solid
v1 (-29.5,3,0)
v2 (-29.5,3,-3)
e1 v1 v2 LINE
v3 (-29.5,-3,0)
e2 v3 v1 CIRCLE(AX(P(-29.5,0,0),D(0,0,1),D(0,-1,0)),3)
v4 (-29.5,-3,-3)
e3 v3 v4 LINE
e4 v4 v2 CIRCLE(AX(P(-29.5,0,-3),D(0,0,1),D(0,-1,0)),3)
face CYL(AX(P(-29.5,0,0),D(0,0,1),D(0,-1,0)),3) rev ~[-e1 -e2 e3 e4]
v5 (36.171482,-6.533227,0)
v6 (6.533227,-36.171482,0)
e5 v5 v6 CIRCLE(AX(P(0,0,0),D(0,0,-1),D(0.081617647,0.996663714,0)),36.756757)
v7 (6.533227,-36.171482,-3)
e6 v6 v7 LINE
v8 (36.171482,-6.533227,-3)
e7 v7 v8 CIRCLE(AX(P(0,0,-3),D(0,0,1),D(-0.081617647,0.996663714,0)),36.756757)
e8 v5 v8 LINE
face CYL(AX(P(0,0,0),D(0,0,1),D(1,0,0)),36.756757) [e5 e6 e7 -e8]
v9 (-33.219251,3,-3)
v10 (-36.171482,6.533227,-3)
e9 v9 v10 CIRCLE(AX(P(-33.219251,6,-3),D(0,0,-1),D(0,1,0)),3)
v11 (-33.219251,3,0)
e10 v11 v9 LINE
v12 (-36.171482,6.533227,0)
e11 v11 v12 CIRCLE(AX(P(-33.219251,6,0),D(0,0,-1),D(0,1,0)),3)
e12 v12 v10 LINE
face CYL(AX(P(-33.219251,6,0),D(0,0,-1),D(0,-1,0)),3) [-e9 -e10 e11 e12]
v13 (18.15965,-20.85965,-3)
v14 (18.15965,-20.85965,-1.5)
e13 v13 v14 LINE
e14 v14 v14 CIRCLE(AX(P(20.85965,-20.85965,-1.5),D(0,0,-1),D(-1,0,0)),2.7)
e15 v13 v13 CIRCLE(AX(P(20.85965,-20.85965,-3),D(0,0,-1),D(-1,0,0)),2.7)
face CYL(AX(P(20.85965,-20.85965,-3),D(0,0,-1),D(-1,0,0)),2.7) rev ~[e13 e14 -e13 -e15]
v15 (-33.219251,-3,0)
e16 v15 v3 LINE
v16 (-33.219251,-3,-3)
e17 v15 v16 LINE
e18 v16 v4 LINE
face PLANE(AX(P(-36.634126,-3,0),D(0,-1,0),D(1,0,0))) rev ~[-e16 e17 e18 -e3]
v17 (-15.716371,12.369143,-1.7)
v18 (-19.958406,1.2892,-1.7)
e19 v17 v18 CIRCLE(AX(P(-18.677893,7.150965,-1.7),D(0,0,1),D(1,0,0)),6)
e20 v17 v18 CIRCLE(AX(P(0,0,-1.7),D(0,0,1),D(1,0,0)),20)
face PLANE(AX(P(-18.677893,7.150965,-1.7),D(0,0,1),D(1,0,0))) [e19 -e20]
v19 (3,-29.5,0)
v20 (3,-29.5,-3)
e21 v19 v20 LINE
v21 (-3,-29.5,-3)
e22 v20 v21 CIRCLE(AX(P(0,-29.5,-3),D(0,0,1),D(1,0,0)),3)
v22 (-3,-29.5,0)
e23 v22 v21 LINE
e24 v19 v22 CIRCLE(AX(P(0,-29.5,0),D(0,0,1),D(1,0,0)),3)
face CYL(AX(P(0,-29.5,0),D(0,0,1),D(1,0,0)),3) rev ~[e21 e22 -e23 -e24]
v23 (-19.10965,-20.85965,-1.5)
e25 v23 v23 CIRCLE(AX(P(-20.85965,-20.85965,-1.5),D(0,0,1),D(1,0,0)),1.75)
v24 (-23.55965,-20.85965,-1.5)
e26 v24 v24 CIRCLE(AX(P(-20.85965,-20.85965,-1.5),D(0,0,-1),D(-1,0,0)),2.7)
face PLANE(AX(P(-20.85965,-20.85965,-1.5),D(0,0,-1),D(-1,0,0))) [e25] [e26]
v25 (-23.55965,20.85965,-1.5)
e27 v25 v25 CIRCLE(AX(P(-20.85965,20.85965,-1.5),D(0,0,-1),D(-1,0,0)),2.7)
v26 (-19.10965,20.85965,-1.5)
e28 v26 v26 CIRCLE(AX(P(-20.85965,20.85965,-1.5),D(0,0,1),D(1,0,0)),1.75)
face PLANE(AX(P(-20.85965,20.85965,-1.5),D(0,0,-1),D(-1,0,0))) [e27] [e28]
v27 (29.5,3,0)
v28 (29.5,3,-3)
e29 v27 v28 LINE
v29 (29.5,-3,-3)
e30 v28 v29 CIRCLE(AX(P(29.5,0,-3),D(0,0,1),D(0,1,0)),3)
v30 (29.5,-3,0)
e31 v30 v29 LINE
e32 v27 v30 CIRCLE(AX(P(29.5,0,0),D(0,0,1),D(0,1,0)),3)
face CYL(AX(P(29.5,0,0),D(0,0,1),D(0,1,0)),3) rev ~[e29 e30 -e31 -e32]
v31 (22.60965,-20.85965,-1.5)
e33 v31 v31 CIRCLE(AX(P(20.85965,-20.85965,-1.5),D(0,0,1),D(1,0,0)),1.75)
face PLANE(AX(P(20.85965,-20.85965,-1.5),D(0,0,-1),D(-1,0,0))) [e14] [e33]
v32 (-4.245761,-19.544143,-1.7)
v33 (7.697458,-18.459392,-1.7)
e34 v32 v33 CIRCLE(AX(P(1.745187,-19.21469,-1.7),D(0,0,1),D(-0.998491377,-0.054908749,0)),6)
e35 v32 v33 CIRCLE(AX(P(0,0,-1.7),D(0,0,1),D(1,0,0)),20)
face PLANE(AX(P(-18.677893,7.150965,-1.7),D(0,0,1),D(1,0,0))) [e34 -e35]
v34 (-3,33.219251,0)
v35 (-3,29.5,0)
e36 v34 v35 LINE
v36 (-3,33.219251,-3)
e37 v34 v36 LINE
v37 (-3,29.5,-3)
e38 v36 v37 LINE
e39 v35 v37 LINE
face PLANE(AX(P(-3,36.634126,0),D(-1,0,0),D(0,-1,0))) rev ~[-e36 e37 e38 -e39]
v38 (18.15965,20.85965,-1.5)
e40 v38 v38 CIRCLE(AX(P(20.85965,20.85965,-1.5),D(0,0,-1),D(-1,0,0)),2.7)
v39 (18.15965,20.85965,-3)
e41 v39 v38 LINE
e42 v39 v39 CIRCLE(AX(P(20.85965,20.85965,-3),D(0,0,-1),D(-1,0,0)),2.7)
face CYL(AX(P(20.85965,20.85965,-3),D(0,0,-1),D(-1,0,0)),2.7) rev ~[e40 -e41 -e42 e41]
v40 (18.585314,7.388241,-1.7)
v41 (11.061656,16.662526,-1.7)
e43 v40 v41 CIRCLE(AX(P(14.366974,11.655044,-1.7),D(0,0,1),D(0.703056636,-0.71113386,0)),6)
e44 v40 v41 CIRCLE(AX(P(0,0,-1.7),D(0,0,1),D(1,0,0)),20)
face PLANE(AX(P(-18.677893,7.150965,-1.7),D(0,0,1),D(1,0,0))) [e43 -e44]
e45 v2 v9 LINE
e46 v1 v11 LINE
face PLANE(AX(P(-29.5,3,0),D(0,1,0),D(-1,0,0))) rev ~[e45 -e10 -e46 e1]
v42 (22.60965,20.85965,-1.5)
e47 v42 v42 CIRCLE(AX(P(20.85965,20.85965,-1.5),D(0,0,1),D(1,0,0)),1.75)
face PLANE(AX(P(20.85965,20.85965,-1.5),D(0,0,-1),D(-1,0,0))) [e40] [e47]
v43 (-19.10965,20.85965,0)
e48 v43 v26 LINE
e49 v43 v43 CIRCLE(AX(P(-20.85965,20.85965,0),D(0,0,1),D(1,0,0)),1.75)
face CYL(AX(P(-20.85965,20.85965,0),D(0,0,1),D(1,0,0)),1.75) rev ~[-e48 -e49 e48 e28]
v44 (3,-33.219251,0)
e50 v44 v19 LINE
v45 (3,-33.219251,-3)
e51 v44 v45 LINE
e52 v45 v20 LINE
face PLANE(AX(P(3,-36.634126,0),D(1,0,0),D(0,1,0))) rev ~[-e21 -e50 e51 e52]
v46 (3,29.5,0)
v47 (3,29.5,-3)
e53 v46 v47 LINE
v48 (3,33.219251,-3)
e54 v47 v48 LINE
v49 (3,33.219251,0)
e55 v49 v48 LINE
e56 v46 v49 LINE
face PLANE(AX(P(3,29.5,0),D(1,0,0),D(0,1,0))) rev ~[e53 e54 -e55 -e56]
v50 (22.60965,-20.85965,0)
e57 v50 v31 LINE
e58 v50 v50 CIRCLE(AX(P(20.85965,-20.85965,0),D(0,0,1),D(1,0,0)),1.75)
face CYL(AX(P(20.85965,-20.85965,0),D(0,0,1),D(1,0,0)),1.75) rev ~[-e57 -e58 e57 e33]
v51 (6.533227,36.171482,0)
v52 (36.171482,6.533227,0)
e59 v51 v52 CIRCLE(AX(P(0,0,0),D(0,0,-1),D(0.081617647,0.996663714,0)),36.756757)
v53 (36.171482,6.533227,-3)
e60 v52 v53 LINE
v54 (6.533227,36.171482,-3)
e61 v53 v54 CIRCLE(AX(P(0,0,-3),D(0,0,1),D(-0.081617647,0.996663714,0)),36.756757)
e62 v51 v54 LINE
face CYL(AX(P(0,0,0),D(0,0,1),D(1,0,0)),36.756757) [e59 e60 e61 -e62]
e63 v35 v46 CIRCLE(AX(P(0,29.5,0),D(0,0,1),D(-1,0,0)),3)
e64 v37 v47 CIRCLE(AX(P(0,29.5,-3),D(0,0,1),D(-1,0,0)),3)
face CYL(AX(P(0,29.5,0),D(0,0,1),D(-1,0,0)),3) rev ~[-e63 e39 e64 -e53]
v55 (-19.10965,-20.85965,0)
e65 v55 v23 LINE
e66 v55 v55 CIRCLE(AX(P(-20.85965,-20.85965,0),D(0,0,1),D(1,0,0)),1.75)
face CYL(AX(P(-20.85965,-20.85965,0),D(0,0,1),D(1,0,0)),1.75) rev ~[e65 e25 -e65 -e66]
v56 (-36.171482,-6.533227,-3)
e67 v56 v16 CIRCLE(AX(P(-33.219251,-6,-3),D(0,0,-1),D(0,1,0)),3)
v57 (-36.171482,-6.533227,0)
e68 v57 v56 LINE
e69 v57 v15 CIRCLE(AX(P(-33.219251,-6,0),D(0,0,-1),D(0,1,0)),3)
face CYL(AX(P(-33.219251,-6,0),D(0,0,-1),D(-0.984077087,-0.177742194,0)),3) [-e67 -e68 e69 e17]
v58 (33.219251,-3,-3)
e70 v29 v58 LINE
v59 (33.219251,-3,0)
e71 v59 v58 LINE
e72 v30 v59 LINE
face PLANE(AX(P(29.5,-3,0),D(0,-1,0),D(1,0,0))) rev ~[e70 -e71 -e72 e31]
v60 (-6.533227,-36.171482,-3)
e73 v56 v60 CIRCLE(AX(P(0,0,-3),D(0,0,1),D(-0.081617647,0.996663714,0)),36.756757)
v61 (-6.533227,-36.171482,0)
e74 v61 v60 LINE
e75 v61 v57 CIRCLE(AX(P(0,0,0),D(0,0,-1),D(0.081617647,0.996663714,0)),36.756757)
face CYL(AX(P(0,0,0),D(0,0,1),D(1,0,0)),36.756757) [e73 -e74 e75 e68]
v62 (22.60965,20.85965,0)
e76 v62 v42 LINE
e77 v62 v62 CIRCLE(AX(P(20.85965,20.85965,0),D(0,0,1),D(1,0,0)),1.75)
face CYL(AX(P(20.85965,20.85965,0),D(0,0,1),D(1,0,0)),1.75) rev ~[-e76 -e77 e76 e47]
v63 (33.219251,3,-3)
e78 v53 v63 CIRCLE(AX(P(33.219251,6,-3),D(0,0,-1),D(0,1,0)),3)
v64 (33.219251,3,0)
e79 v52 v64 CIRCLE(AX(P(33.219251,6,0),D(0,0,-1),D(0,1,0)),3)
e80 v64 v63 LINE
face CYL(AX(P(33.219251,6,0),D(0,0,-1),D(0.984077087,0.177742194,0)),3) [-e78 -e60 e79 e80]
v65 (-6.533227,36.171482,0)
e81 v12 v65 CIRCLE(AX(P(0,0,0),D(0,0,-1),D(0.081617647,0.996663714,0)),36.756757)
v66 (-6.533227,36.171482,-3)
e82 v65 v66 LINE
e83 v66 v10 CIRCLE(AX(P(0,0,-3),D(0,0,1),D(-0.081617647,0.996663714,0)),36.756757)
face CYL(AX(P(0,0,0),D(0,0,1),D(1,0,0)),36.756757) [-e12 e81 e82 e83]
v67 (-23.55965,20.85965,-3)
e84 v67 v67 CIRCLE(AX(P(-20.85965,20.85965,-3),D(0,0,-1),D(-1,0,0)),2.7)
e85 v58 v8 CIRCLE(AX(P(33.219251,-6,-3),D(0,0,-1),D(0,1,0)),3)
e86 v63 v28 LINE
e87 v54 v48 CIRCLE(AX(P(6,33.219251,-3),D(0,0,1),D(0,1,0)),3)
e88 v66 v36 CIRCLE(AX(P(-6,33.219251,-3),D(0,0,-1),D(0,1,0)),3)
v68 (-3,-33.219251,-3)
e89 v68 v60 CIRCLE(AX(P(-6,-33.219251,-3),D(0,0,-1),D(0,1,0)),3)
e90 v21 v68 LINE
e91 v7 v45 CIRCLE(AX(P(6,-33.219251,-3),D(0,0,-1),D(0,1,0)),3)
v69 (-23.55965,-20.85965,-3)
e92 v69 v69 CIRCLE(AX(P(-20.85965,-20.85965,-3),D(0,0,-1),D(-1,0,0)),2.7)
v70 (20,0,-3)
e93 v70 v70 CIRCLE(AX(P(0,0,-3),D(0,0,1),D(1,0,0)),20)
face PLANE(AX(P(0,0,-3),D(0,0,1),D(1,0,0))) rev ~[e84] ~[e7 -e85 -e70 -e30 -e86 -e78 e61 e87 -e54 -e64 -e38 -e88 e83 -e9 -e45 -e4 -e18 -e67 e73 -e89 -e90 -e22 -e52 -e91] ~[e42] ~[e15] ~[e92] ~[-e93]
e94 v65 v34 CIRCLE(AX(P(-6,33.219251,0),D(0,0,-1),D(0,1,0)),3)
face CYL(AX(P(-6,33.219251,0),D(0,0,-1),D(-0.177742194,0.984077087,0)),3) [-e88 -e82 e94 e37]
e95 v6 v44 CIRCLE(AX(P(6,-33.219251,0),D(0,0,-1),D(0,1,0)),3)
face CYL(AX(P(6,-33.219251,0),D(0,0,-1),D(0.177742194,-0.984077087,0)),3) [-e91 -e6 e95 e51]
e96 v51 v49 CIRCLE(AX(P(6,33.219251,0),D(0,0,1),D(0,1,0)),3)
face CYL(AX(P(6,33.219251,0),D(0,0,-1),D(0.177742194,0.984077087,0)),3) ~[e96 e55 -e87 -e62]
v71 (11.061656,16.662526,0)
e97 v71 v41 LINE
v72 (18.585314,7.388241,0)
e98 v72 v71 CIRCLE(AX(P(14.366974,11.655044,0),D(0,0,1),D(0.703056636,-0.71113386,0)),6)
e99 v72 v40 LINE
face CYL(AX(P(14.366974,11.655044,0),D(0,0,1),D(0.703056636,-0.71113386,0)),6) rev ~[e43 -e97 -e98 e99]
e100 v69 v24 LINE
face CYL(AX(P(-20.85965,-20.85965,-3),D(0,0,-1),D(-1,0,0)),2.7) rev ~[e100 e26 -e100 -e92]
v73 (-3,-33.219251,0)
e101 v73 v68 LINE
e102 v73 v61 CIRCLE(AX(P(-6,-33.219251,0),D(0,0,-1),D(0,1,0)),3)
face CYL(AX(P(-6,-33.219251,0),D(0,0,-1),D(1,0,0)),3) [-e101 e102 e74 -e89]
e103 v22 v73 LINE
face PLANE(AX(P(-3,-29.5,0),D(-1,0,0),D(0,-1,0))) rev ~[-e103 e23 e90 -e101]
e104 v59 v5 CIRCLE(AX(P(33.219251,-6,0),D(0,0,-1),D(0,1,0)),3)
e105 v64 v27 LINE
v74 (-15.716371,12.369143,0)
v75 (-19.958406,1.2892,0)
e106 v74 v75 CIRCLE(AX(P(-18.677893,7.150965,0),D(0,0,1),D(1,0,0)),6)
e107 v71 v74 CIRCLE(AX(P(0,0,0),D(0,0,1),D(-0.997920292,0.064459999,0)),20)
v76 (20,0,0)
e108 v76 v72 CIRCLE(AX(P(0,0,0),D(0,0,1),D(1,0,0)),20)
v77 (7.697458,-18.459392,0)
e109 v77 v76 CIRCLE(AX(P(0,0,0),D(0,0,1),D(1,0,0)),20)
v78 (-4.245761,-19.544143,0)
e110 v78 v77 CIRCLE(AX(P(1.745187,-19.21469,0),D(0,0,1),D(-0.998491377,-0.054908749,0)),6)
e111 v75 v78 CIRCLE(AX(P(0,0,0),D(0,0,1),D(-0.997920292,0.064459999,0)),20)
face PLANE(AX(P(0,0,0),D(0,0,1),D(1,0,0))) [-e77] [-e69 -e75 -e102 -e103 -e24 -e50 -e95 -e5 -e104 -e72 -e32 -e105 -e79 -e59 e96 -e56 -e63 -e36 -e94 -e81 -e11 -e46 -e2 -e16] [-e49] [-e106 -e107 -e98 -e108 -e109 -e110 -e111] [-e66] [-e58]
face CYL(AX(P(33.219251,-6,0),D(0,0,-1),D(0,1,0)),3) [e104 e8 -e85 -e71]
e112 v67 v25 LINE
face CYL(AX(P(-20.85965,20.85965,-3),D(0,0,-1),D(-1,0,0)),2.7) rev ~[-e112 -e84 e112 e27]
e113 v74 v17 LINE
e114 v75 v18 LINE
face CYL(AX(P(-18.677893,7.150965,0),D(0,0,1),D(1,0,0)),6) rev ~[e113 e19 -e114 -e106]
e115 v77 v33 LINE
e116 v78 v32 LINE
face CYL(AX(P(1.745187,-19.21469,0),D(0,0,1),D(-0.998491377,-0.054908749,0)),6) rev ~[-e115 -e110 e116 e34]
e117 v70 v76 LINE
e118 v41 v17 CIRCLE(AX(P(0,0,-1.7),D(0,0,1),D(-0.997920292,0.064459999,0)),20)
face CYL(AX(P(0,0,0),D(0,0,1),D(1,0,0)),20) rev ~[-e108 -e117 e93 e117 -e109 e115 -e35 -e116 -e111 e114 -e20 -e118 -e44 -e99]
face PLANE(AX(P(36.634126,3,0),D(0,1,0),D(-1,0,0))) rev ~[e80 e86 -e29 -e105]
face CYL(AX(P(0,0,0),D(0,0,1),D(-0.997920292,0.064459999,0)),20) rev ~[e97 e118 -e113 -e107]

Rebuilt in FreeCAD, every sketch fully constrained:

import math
import FreeCAD as App
import Part
import Sketcher

V = App.Vector


def edges_at(feature, points):
    """Names of the edges that pass closest to the given points."""
    edges = feature.Shape.Edges
    near = lambda p: min(range(len(edges)), key=lambda i: edges[i].distToShape(Part.Vertex(*p))[0])
    return sorted({f"Edge{near(p) + 1}" for p in points})

doc = App.newDocument("Part")
params = doc.addObject("Spreadsheet::Sheet", "Params")
for row, (alias, value) in enumerate([
    ("sketch1_diameter", "40 mm"),
    ("pad1_length", "3 mm"),
    ("sketch2_diameter", "3.5 mm"),
    ("pocket1_length", "5 mm"),
    ("sketch3_diameter", "3.5 mm"),
    ("pocket2_length", "5 mm"),
    ("sketch4_radius", "3 mm"),
    ("sketch4_diameter", "3.5 mm"),
    ("pocket3_length", "10 mm"),
    ("fillet_radius", "3 mm"),
    ("fillet2_radius", "3 mm"),
    ("sketch5_radius", "6 mm"),
    ("sketch5_radius2", "20 mm"),
    ("pocket4_length", "1.7 mm"),
    ("sketch6_diameter", "5.4 mm"),
    ("pocket5_length", "1.5 mm"),
], start=1):
    params.set(f"A{row}", alias)
    params.set(f"B{row}", "=" + value)
    params.setAlias(f"B{row}", alias)

body = doc.addObject("PartDesign::Body", "Body")

sketch1 = doc.addObject("Sketcher::SketchObject", "Sketch")
body.addObject(sketch1)
sketch1.AttachmentSupport = (doc.XY_Plane, [""])
sketch1.MapMode = "FlatFace"
sketch1.addGeometry([
    Part.Circle(V(0, 0, 0), V(0, 0, 1), 37),
    Part.Circle(V(0, 0, 0), V(0, 0, 1), 20),
], False)
sketch1.addConstraint([
    Sketcher.Constraint("Coincident", 0, 3, -1, 1),
    Sketcher.Constraint("Coincident", 1, 3, -1, 1),
    Sketcher.Constraint("Diameter", 1, 40.0),
    Sketcher.Constraint("Diameter", 0, 73.513514),
])
sketch1.setExpression("Constraints[2]", "Params.sketch1_diameter")
pad1 = doc.addObject("PartDesign::Pad", "Pad")
body.addObject(pad1)
pad1.Profile = sketch1
pad1.setExpression("Length", "Params.pad1_length")
pad1.Reversed = True

sketch2 = doc.addObject("Sketcher::SketchObject", "Sketch001")
body.addObject(sketch2)
sketch2.AttachmentSupport = (doc.XY_Plane, [""])
sketch2.MapMode = "FlatFace"
sketch2.addGeometry([
    Part.Circle(V(20.9, 20.9, 0), V(0, 0, 1), 1.8),
    Part.Circle(V(-20.9, 20.9, 0), V(0, 0, 1), 1.8),
    Part.Circle(V(-20.9, -20.9, 0), V(0, 0, 1), 1.8),
    Part.Circle(V(20.9, -20.9, 0), V(0, 0, 1), 1.8),
], False)
sketch2.addConstraint([
    Sketcher.Constraint("Equal", 0, 1),
    Sketcher.Constraint("Equal", 1, 2),
    Sketcher.Constraint("Equal", 2, 3),
    Sketcher.Constraint("Symmetric", 0, 3, 2, 3, -1, 1),
    Sketcher.Constraint("Symmetric", 1, 3, 3, 3, -1, 1),
    Sketcher.Constraint("Symmetric", 0, 3, 1, 3, -2),
    Sketcher.Constraint("Diameter", 0, 3.5),
    Sketcher.Constraint("DistanceX", 1, 3, 0, 3, 41.7193),
    Sketcher.Constraint("DistanceY", 2, 3, 1, 3, 41.7193),
])
sketch2.setExpression("Constraints[6]", "Params.sketch2_diameter")
pocket1 = doc.addObject("PartDesign::Pocket", "Pocket")
body.addObject(pocket1)
pocket1.Profile = sketch2
pocket1.setExpression("Length", "Params.pocket1_length")

sketch3 = doc.addObject("Sketcher::SketchObject", "Sketch002")
body.addObject(sketch3)
sketch3.AttachmentSupport = (doc.XY_Plane, [""])
sketch3.MapMode = "FlatFace"
sketch3.addGeometry([
    Part.Circle(V(0, 29.5, 0), V(0, 0, 1), 1.8),
    Part.Circle(V(29.5, 0, 0), V(0, 0, 1), 1.8),
    Part.Circle(V(0, -29.5, 0), V(0, 0, 1), 1.8),
    Part.Circle(V(-29.5, 0, 0), V(0, 0, 1), 1.8),
], False)
sketch3.addConstraint([
    Sketcher.Constraint("Equal", 0, 1),
    Sketcher.Constraint("Equal", 1, 2),
    Sketcher.Constraint("Equal", 2, 3),
    Sketcher.Constraint("Symmetric", 0, 3, 2, 3, -1, 1),
    Sketcher.Constraint("Symmetric", 1, 3, 3, 3, -1, 1),
    Sketcher.Constraint("PointOnObject", 0, 3, -2),
    Sketcher.Constraint("PointOnObject", 1, 3, -1),
    Sketcher.Constraint("Diameter", 0, 3.5),
    Sketcher.Constraint("DistanceY", 2, 3, 0, 3, 59.0),
    Sketcher.Constraint("DistanceX", 3, 3, 1, 3, 59.0),
])
sketch3.setExpression("Constraints[7]", "Params.sketch3_diameter")
pocket2 = doc.addObject("PartDesign::Pocket", "Pocket001")
body.addObject(pocket2)
pocket2.Profile = sketch3
pocket2.setExpression("Length", "Params.pocket2_length")

sketch4 = doc.addObject("Sketcher::SketchObject", "Sketch003")
body.addObject(sketch4)
sketch4.AttachmentSupport = (doc.XY_Plane, [""])
sketch4.MapMode = "FlatFace"
sketch4.addGeometry([
    Part.LineSegment(V(-3, 36.6, 0), V(-3, 29.5, 0)),
    Part.ArcOfCircle(Part.Circle(V(0, 29.5, 0), V(0, 0, 1), 3), math.radians(180), math.radians(360)),
    Part.LineSegment(V(3, 29.5, 0), V(3, 36.6, 0)),
    Part.ArcOfCircle(Part.Circle(V(0, 0, 0), V(0, 0, 1), 36.8), math.radians(85.32), math.radians(94.68)),
    Part.Circle(V(0, 29.5, 0), V(0, 0, 1), 1.8),
], False)
sketch4.addConstraint([
    Sketcher.Constraint("Tangent", 0, 2, 1, 1),
    Sketcher.Constraint("Tangent", 1, 2, 2, 1),
    Sketcher.Constraint("Coincident", 2, 2, 3, 1),
    Sketcher.Constraint("Coincident", 3, 2, 0, 1),
    Sketcher.Constraint("Vertical", 0),
    Sketcher.Constraint("Vertical", 2),
    Sketcher.Constraint("Coincident", 3, 3, -1, 1),
    Sketcher.Constraint("Coincident", 4, 3, 1, 3),
    Sketcher.Constraint("PointOnObject", 1, 3, -2),
    Sketcher.Constraint("Radius", 1, 3.0),
    Sketcher.Constraint("Diameter", 4, 3.5),
    Sketcher.Constraint("DistanceY", -1, 1, 1, 3, 29.5),
    Sketcher.Constraint("Radius", 3, 36.756757),
])
sketch4.setExpression("Constraints[9]", "Params.sketch4_radius")
sketch4.setExpression("Constraints[10]", "Params.sketch4_diameter")
pocket3 = doc.addObject("PartDesign::Pocket", "Pocket002")
body.addObject(pocket3)
pocket3.Profile = sketch4
pocket3.setExpression("Length", "Params.pocket3_length")
doc.recompute()

fillet = doc.addObject("PartDesign::Fillet", "Fillet")
body.addObject(fillet)
fillet.Base = (pocket3, edges_at(pocket3, [(-3, 36.634, -1.5), (3, 36.634, -1.5)]))
fillet.setExpression("Radius", "Params.fillet_radius")
doc.recompute()

polarpattern = doc.addObject("PartDesign::PolarPattern", "PolarPattern")
body.addObject(polarpattern)
polarpattern.Originals = [pocket3]
polarpattern.Axis = (doc.Z_Axis, [""])
polarpattern.Angle = 360
polarpattern.Occurrences = 4
body.Tip = polarpattern
doc.recompute()

fillet2 = doc.addObject("PartDesign::Fillet", "Fillet001")
body.addObject(fillet2)
fillet2.Base = (polarpattern, edges_at(polarpattern, [
    (-36.634, -3, -1.5),
    (-36.634, 3, -1.5),
    (3, -36.634, -1.5),
    (-3, -36.634, -1.5),
    (36.634, 3, -1.5),
    (36.634, -3, -1.5),
]))
fillet2.setExpression("Radius", "Params.fillet2_radius")

sketch5 = doc.addObject("Sketcher::SketchObject", "Sketch004")
body.addObject(sketch5)
sketch5.AttachmentSupport = (doc.XY_Plane, [""])
sketch5.MapMode = "FlatFace"
sketch5.addGeometry([
    Part.ArcOfCircle(Part.Circle(V(14, 12, 0), V(0, 0, 1), 6), math.radians(-45), math.radians(123)),
    Part.ArcOfCircle(Part.Circle(V(0, 0, 0), V(0, 0, 1), 20), math.radians(56), math.radians(142)),
    Part.ArcOfCircle(Part.Circle(V(-19, 7, 0), V(0, 0, 1), 6), math.radians(60), math.radians(258)),
    Part.ArcOfCircle(Part.Circle(V(0, 0, 0), V(0, 0, 1), 20), math.radians(176), math.radians(258)),
    Part.ArcOfCircle(Part.Circle(V(2, -19, 0), V(0, 0, 1), 6), math.radians(-177), math.radians(7)),
    Part.ArcOfCircle(Part.Circle(V(0, 0, 0), V(0, 0, 1), 20), math.radians(-67), math.radians(22)),
], False)
sketch5.addConstraint([
    Sketcher.Constraint("Coincident", 0, 2, 1, 1),
    Sketcher.Constraint("Coincident", 1, 2, 2, 1),
    Sketcher.Constraint("Coincident", 2, 2, 3, 1),
    Sketcher.Constraint("Coincident", 3, 2, 4, 1),
    Sketcher.Constraint("Coincident", 4, 2, 5, 1),
    Sketcher.Constraint("Coincident", 5, 2, 0, 1),
    Sketcher.Constraint("Coincident", 1, 3, -1, 1),
    Sketcher.Constraint("Coincident", 3, 3, -1, 1),
    Sketcher.Constraint("Coincident", 5, 3, -1, 1),
    Sketcher.Constraint("Equal", 0, 2),
    Sketcher.Constraint("Equal", 1, 3),
    Sketcher.Constraint("Equal", 2, 4),
    Sketcher.Constraint("Equal", 3, 5),
    Sketcher.Constraint("Radius", 0, 6.0),
    Sketcher.Constraint("Radius", 1, 20.0),
    Sketcher.Constraint("DistanceY", -1, 1, 2, 2, 1.2892),
    Sketcher.Constraint("DistanceY", 4, 3, 4, 2, 0.755299),
    Sketcher.Constraint("DistanceY", 4, 3, -1, 1, 19.21469),
    Sketcher.Constraint("DistanceX", 1, 2, -1, 1, 15.716371),
    Sketcher.Constraint("DistanceY", -1, 1, 5, 2, 7.388241),
    Sketcher.Constraint("DistanceY", 2, 3, 0, 3, 4.504079),
])
sketch5.setExpression("Constraints[13]", "Params.sketch5_radius")
sketch5.setExpression("Constraints[14]", "Params.sketch5_radius2")
pocket4 = doc.addObject("PartDesign::Pocket", "Pocket003")
body.addObject(pocket4)
pocket4.Profile = sketch5
pocket4.setExpression("Length", "Params.pocket4_length")

sketch6 = doc.addObject("Sketcher::SketchObject", "Sketch005")
body.addObject(sketch6)
sketch6.AttachmentSupport = (doc.XY_Plane, [""])
sketch6.MapMode = "FlatFace"
sketch6.AttachmentOffset = App.Placement(V(0, 0, -3), App.Rotation())
sketch6.addGeometry([
    Part.Circle(V(20.9, 20.9, 0), V(0, 0, 1), 2.7),
    Part.Circle(V(-20.9, 20.9, 0), V(0, 0, 1), 2.7),
    Part.Circle(V(-20.9, -20.9, 0), V(0, 0, 1), 2.7),
    Part.Circle(V(20.9, -20.9, 0), V(0, 0, 1), 2.7),
], False)
sketch6.addConstraint([
    Sketcher.Constraint("Equal", 0, 1),
    Sketcher.Constraint("Equal", 1, 2),
    Sketcher.Constraint("Equal", 2, 3),
    Sketcher.Constraint("Symmetric", 0, 3, 2, 3, -1, 1),
    Sketcher.Constraint("Symmetric", 1, 3, 3, 3, -1, 1),
    Sketcher.Constraint("Symmetric", 0, 3, 1, 3, -2),
    Sketcher.Constraint("Diameter", 0, 5.4),
    Sketcher.Constraint("DistanceX", 1, 3, 0, 3, 41.7193),
    Sketcher.Constraint("DistanceY", 2, 3, 1, 3, 41.7193),
])
sketch6.setExpression("Constraints[6]", "Params.sketch6_diameter")
pocket5 = doc.addObject("PartDesign::Pocket", "Pocket004")
body.addObject(pocket5)
pocket5.Profile = sketch6
pocket5.setExpression("Length", "Params.pocket5_length")
pocket5.Reversed = True

doc.recompute()
